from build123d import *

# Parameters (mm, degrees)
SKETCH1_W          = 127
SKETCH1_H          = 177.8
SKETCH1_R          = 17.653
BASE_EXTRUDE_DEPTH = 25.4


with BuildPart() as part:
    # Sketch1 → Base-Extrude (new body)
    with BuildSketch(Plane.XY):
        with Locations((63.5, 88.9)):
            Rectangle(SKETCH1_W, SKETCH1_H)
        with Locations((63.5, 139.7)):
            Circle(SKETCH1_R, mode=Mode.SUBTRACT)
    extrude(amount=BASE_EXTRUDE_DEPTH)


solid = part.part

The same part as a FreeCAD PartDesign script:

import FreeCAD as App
import Part
import Sketcher
from FreeCAD import Vector
Q = App.Units.Quantity

doc = App.newDocument("Part")
body = doc.addObject("PartDesign::Body", "Body")

sketch1 = body.newObject("Sketcher::SketchObject", "Sketch")
sketch1.AttachmentSupport = (doc.getObject("XY_Plane"), [""])
sketch1.MapMode = "FlatFace"
sketch1.addGeometry([
    Part.LineSegment(Vector(0, 178, 0), Vector(0, 0, 0)),
    Part.LineSegment(Vector(0, 0, 0), Vector(127, 0, 0)),
    Part.LineSegment(Vector(127, 0, 0), Vector(127, 178, 0)),
    Part.LineSegment(Vector(127, 178, 0), Vector(0, 178, 0)),
    Part.Circle(Vector(64, 140, 0), Vector(0, 0, 1), 18),
], False)
sketch1.addConstraint([
    Sketcher.Constraint("Coincident", 0, 2, 1, 1),
    Sketcher.Constraint("Coincident", 1, 2, 2, 1),
    Sketcher.Constraint("Coincident", 2, 2, 3, 1),
    Sketcher.Constraint("Coincident", 3, 2, 0, 1),
    Sketcher.Constraint("Vertical", 0),
    Sketcher.Constraint("Horizontal", 1),
    Sketcher.Constraint("Vertical", 2),
    Sketcher.Constraint("Horizontal", 3),
    Sketcher.Constraint("Coincident", 0, 2, -1, 1),
    Sketcher.Constraint("Diameter", 4, Q("1.39 in")),
    Sketcher.Constraint("DistanceX", 1, 1, 1, 2, Q("5 in")),
    Sketcher.Constraint("DistanceY", 0, 2, 0, 1, Q("7 in")),
    Sketcher.Constraint("DistanceX", -1, 1, 4, 3, Q("2.5 in")),
    Sketcher.Constraint("DistanceY", -1, 1, 4, 3, Q("5.5 in")),
])
pad1 = body.newObject("PartDesign::Pad", "Pad")
pad1.Profile = sketch1
pad1.Length = Q("1 in")

doc.recompute()
